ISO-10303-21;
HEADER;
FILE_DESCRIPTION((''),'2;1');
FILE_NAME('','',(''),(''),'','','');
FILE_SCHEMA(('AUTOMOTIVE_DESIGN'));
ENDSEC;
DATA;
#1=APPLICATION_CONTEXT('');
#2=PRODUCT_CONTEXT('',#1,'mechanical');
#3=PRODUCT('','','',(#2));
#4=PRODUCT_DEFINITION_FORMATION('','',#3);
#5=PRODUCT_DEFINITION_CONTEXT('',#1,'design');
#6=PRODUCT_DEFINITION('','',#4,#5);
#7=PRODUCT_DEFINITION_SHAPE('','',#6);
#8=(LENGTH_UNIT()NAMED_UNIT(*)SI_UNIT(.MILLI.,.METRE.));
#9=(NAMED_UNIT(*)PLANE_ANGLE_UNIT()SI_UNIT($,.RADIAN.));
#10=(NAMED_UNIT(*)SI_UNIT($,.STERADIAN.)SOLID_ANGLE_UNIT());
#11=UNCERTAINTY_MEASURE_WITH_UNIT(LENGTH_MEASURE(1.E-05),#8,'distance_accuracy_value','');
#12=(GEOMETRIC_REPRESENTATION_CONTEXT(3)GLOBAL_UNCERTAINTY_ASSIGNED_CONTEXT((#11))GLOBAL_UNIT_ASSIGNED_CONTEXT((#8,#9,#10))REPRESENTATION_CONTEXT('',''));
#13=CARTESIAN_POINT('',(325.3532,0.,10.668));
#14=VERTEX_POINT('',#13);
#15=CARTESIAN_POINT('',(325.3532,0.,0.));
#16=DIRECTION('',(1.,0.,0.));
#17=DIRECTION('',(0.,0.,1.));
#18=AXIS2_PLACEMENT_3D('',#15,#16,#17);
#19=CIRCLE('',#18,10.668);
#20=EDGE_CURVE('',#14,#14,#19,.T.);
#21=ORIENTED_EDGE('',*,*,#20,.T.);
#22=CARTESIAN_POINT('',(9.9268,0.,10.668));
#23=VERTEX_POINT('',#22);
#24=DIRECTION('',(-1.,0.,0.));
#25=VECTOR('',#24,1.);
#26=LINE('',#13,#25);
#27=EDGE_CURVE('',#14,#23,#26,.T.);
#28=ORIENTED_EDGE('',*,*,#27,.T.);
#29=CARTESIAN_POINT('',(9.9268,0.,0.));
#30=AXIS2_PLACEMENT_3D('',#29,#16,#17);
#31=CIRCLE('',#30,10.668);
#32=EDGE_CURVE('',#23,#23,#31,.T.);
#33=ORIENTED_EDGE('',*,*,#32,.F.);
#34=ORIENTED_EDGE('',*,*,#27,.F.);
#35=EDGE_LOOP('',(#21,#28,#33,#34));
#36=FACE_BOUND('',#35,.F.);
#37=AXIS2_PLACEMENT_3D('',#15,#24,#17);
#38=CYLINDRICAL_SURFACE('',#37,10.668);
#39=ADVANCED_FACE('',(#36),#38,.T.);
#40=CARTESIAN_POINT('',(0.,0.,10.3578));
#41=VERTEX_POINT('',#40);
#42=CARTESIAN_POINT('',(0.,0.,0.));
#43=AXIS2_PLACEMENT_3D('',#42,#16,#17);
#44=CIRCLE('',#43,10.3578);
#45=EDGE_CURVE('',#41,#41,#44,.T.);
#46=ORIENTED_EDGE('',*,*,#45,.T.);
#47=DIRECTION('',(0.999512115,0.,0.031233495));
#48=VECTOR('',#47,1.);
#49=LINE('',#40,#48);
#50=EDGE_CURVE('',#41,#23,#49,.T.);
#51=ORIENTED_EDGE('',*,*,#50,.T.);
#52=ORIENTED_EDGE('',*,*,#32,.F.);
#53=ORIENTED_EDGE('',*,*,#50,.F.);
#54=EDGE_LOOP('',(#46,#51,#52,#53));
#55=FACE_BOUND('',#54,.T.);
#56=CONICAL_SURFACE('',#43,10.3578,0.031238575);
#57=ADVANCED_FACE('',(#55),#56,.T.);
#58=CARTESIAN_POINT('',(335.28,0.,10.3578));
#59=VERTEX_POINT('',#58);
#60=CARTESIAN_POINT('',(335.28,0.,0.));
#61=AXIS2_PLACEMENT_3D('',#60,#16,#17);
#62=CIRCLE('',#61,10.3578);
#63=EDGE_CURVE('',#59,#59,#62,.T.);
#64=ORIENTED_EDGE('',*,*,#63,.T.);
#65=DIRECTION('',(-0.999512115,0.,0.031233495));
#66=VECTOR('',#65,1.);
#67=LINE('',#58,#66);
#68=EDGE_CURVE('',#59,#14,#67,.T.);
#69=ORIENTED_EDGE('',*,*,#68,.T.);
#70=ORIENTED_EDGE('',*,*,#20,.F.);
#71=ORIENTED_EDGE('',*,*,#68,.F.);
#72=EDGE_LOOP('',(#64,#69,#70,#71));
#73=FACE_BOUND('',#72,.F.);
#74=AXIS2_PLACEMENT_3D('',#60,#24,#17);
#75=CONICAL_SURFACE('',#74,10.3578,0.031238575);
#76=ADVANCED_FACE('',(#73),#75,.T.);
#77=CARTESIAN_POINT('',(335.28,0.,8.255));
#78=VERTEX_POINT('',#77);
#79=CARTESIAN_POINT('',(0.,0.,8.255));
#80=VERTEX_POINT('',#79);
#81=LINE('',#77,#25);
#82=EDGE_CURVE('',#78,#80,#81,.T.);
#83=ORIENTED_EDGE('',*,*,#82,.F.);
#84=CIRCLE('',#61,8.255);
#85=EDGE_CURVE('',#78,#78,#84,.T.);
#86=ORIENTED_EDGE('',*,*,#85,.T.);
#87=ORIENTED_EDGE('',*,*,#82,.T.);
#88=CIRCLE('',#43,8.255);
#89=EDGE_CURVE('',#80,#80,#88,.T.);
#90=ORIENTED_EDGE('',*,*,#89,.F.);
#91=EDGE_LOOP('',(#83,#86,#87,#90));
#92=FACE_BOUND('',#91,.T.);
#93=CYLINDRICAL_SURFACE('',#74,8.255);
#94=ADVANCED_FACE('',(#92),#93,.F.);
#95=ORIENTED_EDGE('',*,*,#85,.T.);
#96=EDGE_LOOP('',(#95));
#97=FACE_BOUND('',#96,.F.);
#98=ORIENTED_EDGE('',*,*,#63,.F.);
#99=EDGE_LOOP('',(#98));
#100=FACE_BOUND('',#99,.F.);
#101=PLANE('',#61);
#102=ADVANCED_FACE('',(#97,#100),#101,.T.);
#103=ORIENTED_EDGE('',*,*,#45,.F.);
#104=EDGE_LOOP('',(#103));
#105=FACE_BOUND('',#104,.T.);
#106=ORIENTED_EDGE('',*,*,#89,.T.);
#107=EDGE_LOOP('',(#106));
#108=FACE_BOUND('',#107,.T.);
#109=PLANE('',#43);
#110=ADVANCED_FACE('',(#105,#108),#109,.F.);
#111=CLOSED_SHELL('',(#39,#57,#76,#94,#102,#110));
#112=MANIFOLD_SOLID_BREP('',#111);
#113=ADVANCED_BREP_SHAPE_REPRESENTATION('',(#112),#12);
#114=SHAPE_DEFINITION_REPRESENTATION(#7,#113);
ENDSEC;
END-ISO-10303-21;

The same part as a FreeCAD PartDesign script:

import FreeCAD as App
import Part
import Sketcher
Q = App.Units.Quantity


def add_polygon(sketch, points):
    """Adds a closed chain of lines whose ends are joined by coincident constraints."""
    first, n = sketch.GeometryCount, len(points)
    for a, b in zip(points, points[1:] + points[:1]):
        sketch.addGeometry(Part.LineSegment(App.Vector(*a, 0), App.Vector(*b, 0)), False)
    for i in range(n):
        sketch.addConstraint(Sketcher.Constraint("Coincident", first + i, 2, first + (i + 1) % n, 1))

doc = App.newDocument("Part")
body = doc.addObject("PartDesign::Body", "Body")

# Sketch on XZ plane
sketch1 = body.newObject("Sketcher::SketchObject", "Sketch")
sketch1.AttachmentSupport = (doc.getObject("XZ_Plane"), [""])
sketch1.MapMode = "FlatFace"
add_polygon(sketch1, [(335.3, 10.4), (335.3, 8.3), (0, 8.3), (0, 10.4), (9.9, 10.7), (325.4, 10.7)])  # lines 0-5
sketch1.addConstraint([
    Sketcher.Constraint("Vertical", 0),
    Sketcher.Constraint("Horizontal", 1),
    Sketcher.Constraint("Vertical", 2),
    Sketcher.Constraint("Horizontal", 4),
    Sketcher.Constraint("PointOnObject", 1, 2, -2),
    Sketcher.Constraint("Horizontal", 2, 2, 5, 2),
    Sketcher.Constraint("Equal", 3, 5),
    Sketcher.Constraint("DistanceX", 1, 2, 1, 1, Q("13.2 in")),
    Sketcher.Constraint("Angle", 3, Q("1.7898 deg")),
    Sketcher.Constraint("DistanceY", -1, 1, 3, 2, Q("0.42 in")),
    Sketcher.Constraint("Distance", 3, Q("0.391 in")),
    Sketcher.Constraint("DistanceY", -1, 1, 0, 2, Q("0.325 in")),
])
revolution = body.newObject("PartDesign::Revolution", "Revolution")
revolution.Profile = sketch1
revolution.ReferenceAxis = (sketch1, ["H_Axis"])
revolution.Angle = 360

doc.recompute()
